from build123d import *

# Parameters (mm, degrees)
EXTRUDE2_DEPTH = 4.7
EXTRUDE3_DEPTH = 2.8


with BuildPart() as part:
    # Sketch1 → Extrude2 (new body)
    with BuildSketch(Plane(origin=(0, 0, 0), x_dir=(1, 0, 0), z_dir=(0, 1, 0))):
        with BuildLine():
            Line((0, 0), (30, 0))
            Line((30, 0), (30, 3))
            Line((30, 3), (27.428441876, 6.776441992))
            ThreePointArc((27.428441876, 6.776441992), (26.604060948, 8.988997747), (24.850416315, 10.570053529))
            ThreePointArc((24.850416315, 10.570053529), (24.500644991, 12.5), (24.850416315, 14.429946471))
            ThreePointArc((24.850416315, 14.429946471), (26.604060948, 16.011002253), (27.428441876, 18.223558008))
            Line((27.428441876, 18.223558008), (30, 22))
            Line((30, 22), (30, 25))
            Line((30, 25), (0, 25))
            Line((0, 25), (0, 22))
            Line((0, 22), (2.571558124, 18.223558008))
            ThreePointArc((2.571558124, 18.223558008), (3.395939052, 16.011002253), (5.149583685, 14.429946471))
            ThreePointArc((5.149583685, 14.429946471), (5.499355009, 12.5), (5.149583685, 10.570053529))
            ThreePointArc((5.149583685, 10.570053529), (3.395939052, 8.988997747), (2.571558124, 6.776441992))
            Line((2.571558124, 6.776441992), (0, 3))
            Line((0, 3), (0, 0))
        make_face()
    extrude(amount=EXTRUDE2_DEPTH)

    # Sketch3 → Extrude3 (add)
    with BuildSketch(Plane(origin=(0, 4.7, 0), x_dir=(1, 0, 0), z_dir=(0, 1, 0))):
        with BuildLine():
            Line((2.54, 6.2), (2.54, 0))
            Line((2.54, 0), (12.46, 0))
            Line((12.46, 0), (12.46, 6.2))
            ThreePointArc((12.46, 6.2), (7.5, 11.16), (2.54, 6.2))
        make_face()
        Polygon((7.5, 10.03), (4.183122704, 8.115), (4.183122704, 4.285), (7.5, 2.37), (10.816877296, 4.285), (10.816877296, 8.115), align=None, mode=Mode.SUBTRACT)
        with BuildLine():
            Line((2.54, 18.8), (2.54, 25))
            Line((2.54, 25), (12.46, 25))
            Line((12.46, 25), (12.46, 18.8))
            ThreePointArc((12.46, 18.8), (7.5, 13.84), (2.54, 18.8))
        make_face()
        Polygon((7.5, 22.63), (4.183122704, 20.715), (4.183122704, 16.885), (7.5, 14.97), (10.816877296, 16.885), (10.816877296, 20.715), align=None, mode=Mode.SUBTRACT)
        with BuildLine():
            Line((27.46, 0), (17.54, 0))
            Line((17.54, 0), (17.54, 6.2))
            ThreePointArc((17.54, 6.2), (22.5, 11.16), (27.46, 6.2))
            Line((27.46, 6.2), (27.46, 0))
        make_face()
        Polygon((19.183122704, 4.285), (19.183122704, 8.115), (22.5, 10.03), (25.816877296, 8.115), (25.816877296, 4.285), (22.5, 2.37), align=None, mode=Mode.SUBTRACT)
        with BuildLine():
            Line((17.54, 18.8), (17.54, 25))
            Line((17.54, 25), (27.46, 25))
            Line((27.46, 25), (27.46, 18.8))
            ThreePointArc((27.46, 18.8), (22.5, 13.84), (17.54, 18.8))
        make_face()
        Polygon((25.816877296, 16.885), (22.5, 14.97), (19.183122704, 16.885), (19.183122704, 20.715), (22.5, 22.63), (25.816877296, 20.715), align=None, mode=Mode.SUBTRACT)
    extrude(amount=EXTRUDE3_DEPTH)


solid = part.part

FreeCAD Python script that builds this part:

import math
import FreeCAD as App
import Part
import Sketcher

V = App.Vector
Q = App.Units.Quantity

doc = App.newDocument("Part")
body = doc.addObject("PartDesign::Body", "Body")

sketch1 = body.newObject("Sketcher::SketchObject", "Sketch")
sketch1.AttachmentSupport = (doc.getObject("XZ_Plane"), [""])
sketch1.MapMode = "FlatFace"
sketch1.addGeometry(Part.LineSegment(V(0, 0, 0), V(30, 0, 0)), False)
sketch1.addGeometry(Part.LineSegment(V(30, 0, 0), V(30, -3, 0)), False)
sketch1.addGeometry(Part.LineSegment(V(30, -3, 0), V(27.428442, -6.776442, 0)), False)
sketch1.addGeometry(Part.ArcOfCircle(Part.Circle(V(22.5, -6.2, 0), V(0, 0, 1), 4.962038), math.radians(-61.726587), math.radians(-6.671137)), False)
sketch1.addGeometry(Part.ArcOfCircle(Part.Circle(V(30, -12.5, 0), V(0, 0, 1), 5.499355), math.radians(159.455148), math.radians(200.544852)), False)
sketch1.addGeometry(Part.ArcOfCircle(Part.Circle(V(22.5, -18.8, 0), V(0, 0, 1), 4.962038), math.radians(6.671137), math.radians(61.726587)), False)
sketch1.addGeometry(Part.LineSegment(V(27.428442, -18.223558, 0), V(30, -22, 0)), False)
sketch1.addGeometry(Part.LineSegment(V(30, -22, 0), V(30, -25, 0)), False)
sketch1.addGeometry(Part.LineSegment(V(30, -25, 0), V(0, -25, 0)), False)
sketch1.addGeometry(Part.LineSegment(V(0, -25, 0), V(0, -22, 0)), False)
sketch1.addGeometry(Part.LineSegment(V(0, -22, 0), V(2.571558, -18.223558, 0)), False)
sketch1.addGeometry(Part.ArcOfCircle(Part.Circle(V(7.5, -18.8, 0), V(0, 0, 1), 4.962038), math.radians(118.273413), math.radians(173.328863)), False)
sketch1.addGeometry(Part.ArcOfCircle(Part.Circle(V(0, -12.5, 0), V(0, 0, 1), 5.499355), math.radians(-20.544852), math.radians(20.544852)), False)
sketch1.addGeometry(Part.ArcOfCircle(Part.Circle(V(7.5, -6.2, 0), V(0, 0, 1), 4.962038), math.radians(-173.328863), math.radians(-118.273413)), False)
sketch1.addGeometry(Part.LineSegment(V(2.571558, -6.776442, 0), V(0, -3, 0)), False)
sketch1.addGeometry(Part.LineSegment(V(0, -3, 0), V(0, 0, 0)), False)
sketch1.addConstraint(Sketcher.Constraint("Coincident", 0, 2, 1, 1))
sketch1.addConstraint(Sketcher.Constraint("Coincident", 1, 2, 2, 1))
sketch1.addConstraint(Sketcher.Constraint("Coincident", 2, 2, 3, 2))
sketch1.addConstraint(Sketcher.Constraint("Coincident", 3, 1, 4, 1))
sketch1.addConstraint(Sketcher.Constraint("Coincident", 4, 2, 5, 2))
sketch1.addConstraint(Sketcher.Constraint("Coincident", 5, 1, 6, 1))
sketch1.addConstraint(Sketcher.Constraint("Coincident", 6, 2, 7, 1))
sketch1.addConstraint(Sketcher.Constraint("Coincident", 7, 2, 8, 1))
sketch1.addConstraint(Sketcher.Constraint("Coincident", 8, 2, 9, 1))
sketch1.addConstraint(Sketcher.Constraint("Coincident", 9, 2, 10, 1))
sketch1.addConstraint(Sketcher.Constraint("Coincident", 10, 2, 11, 2))
sketch1.addConstraint(Sketcher.Constraint("Coincident", 11, 1, 12, 1))
sketch1.addConstraint(Sketcher.Constraint("Coincident", 12, 2, 13, 2))
sketch1.addConstraint(Sketcher.Constraint("Coincident", 13, 1, 14, 1))
sketch1.addConstraint(Sketcher.Constraint("Coincident", 14, 2, 15, 1))
sketch1.addConstraint(Sketcher.Constraint("Coincident", 15, 2, 0, 1))
sketch1.addConstraint(Sketcher.Constraint("Horizontal", 0))
sketch1.addConstraint(Sketcher.Constraint("Vertical", 1))
sketch1.addConstraint(Sketcher.Constraint("Vertical", 7))
sketch1.addConstraint(Sketcher.Constraint("Horizontal", 8))
sketch1.addConstraint(Sketcher.Constraint("Vertical", 9))
sketch1.addConstraint(Sketcher.Constraint("Vertical", 15))
sketch1.addConstraint(Sketcher.Constraint("Coincident", 15, 2, -1, 1))
sketch1.addConstraint(Sketcher.Constraint("Equal", 3, 5))
sketch1.addConstraint(Sketcher.Constraint("Equal", 5, 11))
sketch1.addConstraint(Sketcher.Constraint("Equal", 4, 12))
sketch1.addConstraint(Sketcher.Constraint("Equal", 11, 13))
sketch1.addConstraint(Sketcher.Constraint("PointOnObject", 12, 3, -2))
sketch1.addConstraint(Sketcher.Constraint("PointOnObject", 8, 2, -2))
sketch1.addConstraint(Sketcher.Constraint("Parallel", 2, 10))
sketch1.addConstraint(Sketcher.Constraint("Parallel", 6, 14))
sketch1.addConstraint(Sketcher.Constraint("Horizontal", 5, 3, 11, 3))
sketch1.addConstraint(Sketcher.Constraint("Horizontal", 4, 3, 12, 3))
sketch1.addConstraint(Sketcher.Constraint("Horizontal", 3, 3, 13, 3))
sketch1.addConstraint(Sketcher.Constraint("Horizontal", 6, 2, 9, 2))
sketch1.addConstraint(Sketcher.Constraint("Horizontal", 5, 1, 10, 2))
sketch1.addConstraint(Sketcher.Constraint("Horizontal", 4, 2, 11, 1))
sketch1.addConstraint(Sketcher.Constraint("Horizontal", 3, 1, 12, 2))
sketch1.addConstraint(Sketcher.Constraint("Horizontal", 2, 2, 13, 1))
sketch1.addConstraint(Sketcher.Constraint("Horizontal", 1, 2, 14, 2))
sketch1.addConstraint(Sketcher.Constraint("Vertical", 3, 3, 5, 3))
sketch1.addConstraint(Sketcher.Constraint("Vertical", 4, 3, 0, 2))
sketch1.addConstraint(Sketcher.Constraint("Vertical", 3, 1, 4, 2))
sketch1.addConstraint(Sketcher.Constraint("Vertical", 2, 2, 5, 1))
sketch1.addConstraint(Sketcher.Constraint("Equal", 1, 7))
sketch1.addConstraint(Sketcher.Constraint("DistanceX", 0, 1, 0, 2, Q("30 mm")))
sketch1.addConstraint(Sketcher.Constraint("DistanceY", 1, 2, 1, 1, Q("3 mm")))
sketch1.addConstraint(Sketcher.Constraint("DistanceY", 6, 2, -1, 1, Q("22 mm")))
sketch1.addConstraint(Sketcher.Constraint("DistanceX", 11, 3, 5, 3, Q("15 mm")))
sketch1.addConstraint(Sketcher.Constraint("DistanceY", 3, 3, -1, 1, Q("6.2 mm")))
sketch1.addConstraint(Sketcher.Constraint("Radius", 3, Q("4.962038 mm")))
sketch1.addConstraint(Sketcher.Constraint("Radius", 4, Q("5.499355 mm")))
sketch1.addConstraint(Sketcher.Constraint("DistanceX", -1, 1, 2, 2, Q("27.428442 mm")))
pad1 = body.newObject("PartDesign::Pad", "Pad")
pad1.Profile = sketch1
pad1.Length = 4.7
pad1.Reversed = True

sketch2 = body.newObject("Sketcher::SketchObject", "Sketch001")
sketch2.AttachmentSupport = (doc.getObject("XZ_Plane"), [""])
sketch2.MapMode = "FlatFace"
sketch2.AttachmentOffset = App.Placement(V(0, 0, -4.7), App.Rotation())
sketch2.addGeometry(Part.LineSegment(V(2.54, -6.2, 0), V(2.54, 0, 0)), False)
sketch2.addGeometry(Part.LineSegment(V(2.54, 0, 0), V(12.46, 0, 0)), False)
sketch2.addGeometry(Part.LineSegment(V(12.46, 0, 0), V(12.46, -6.2, 0)), False)
sketch2.addGeometry(Part.ArcOfCircle(Part.Circle(V(7.5, -6.2, 0), V(0, 0, 1), 4.96), math.radians(180), math.radians(360)), False)
sketch2.addGeometry(Part.LineSegment(V(4.183123, -8.115, 0), V(7.5, -10.03, 0)), False)
sketch2.addGeometry(Part.LineSegment(V(7.5, -10.03, 0), V(10.816877, -8.115, 0)), False)
sketch2.addGeometry(Part.LineSegment(V(10.816877, -8.115, 0), V(10.816877, -4.285, 0)), False)
sketch2.addGeometry(Part.LineSegment(V(10.816877, -4.285, 0), V(7.5, -2.37, 0)), False)
sketch2.addGeometry(Part.LineSegment(V(7.5, -2.37, 0), V(4.183123, -4.285, 0)), False)
sketch2.addGeometry(Part.LineSegment(V(4.183123, -4.285, 0), V(4.183123, -8.115, 0)), False)
sketch2.addGeometry(Part.LineSegment(V(2.54, -25, 0), V(2.54, -18.8, 0)), False)
sketch2.addGeometry(Part.ArcOfCircle(Part.Circle(V(7.5, -18.8, 0), V(0, 0, 1), 4.96), math.radians(0), math.radians(180)), False)
sketch2.addGeometry(Part.LineSegment(V(12.46, -18.8, 0), V(12.46, -25, 0)), False)
sketch2.addGeometry(Part.LineSegment(V(12.46, -25, 0), V(2.54, -25, 0)), False)
sketch2.addGeometry(Part.LineSegment(V(7.5, -22.63, 0), V(10.816877, -20.715, 0)), False)
sketch2.addGeometry(Part.LineSegment(V(10.816877, -20.715, 0), V(10.816877, -16.885, 0)), False)
sketch2.addGeometry(Part.LineSegment(V(10.816877, -16.885, 0), V(7.5, -14.97, 0)), False)
sketch2.addGeometry(Part.LineSegment(V(7.5, -14.97, 0), V(4.183123, -16.885, 0)), False)
sketch2.addGeometry(Part.LineSegment(V(4.183123, -16.885, 0), V(4.183123, -20.715, 0)), False)
sketch2.addGeometry(Part.LineSegment(V(4.183123, -20.715, 0), V(7.5, -22.63, 0)), False)
sketch2.addGeometry(Part.LineSegment(V(17.54, 0, 0), V(27.46, 0, 0)), False)
sketch2.addGeometry(Part.LineSegment(V(27.46, 0, 0), V(27.46, -6.2, 0)), False)
sketch2.addGeometry(Part.ArcOfCircle(Part.Circle(V(22.5, -6.2, 0), V(0, 0, 1), 4.96), math.radians(180), math.radians(360)), False)
sketch2.addGeometry(Part.LineSegment(V(17.54, -6.2, 0), V(17.54, 0, 0)), False)
sketch2.addGeometry(Part.LineSegment(V(19.183123, -4.285, 0), V(19.183123, -8.115, 0)), False)
sketch2.addGeometry(Part.LineSegment(V(19.183123, -8.115, 0), V(22.5, -10.03, 0)), False)
sketch2.addGeometry(Part.LineSegment(V(22.5, -10.03, 0), V(25.816877, -8.115, 0)), False)
sketch2.addGeometry(Part.LineSegment(V(25.816877, -8.115, 0), V(25.816877, -4.285, 0)), False)
sketch2.addGeometry(Part.LineSegment(V(25.816877, -4.285, 0), V(22.5, -2.37, 0)), False)
sketch2.addGeometry(Part.LineSegment(V(22.5, -2.37, 0), V(19.183123, -4.285, 0)), False)
sketch2.addGeometry(Part.LineSegment(V(17.54, -25, 0), V(17.54, -18.8, 0)), False)
sketch2.addGeometry(Part.ArcOfCircle(Part.Circle(V(22.5, -18.8, 0), V(0, 0, 1), 4.96), math.radians(0), math.radians(180)), False)
sketch2.addGeometry(Part.LineSegment(V(27.46, -18.8, 0), V(27.46, -25, 0)), False)
sketch2.addGeometry(Part.LineSegment(V(27.46, -25, 0), V(17.54, -25, 0)), False)
sketch2.addGeometry(Part.LineSegment(V(25.816877, -16.885, 0), V(22.5, -14.97, 0)), False)
sketch2.addGeometry(Part.LineSegment(V(22.5, -14.97, 0), V(19.183123, -16.885, 0)), False)
sketch2.addGeometry(Part.LineSegment(V(19.183123, -16.885, 0), V(19.183123, -20.715, 0)), False)
sketch2.addGeometry(Part.LineSegment(V(19.183123, -20.715, 0), V(22.5, -22.63, 0)), False)
sketch2.addGeometry(Part.LineSegment(V(22.5, -22.63, 0), V(25.816877, -20.715, 0)), False)
sketch2.addGeometry(Part.LineSegment(V(25.816877, -20.715, 0), V(25.816877, -16.885, 0)), False)
sketch2.addConstraint(Sketcher.Constraint("Coincident", 0, 2, 1, 1))
sketch2.addConstraint(Sketcher.Constraint("Coincident", 1, 2, 2, 1))
sketch2.addConstraint(Sketcher.Constraint("Tangent", 2, 2, 3, 2))
sketch2.addConstraint(Sketcher.Constraint("Tangent", 3, 1, 0, 1))
sketch2.addConstraint(Sketcher.Constraint("Coincident", 4, 2, 5, 1))
sketch2.addConstraint(Sketcher.Constraint("Coincident", 5, 2, 6, 1))
sketch2.addConstraint(Sketcher.Constraint("Coincident", 6, 2, 7, 1))
sketch2.addConstraint(Sketcher.Constraint("Coincident", 7, 2, 8, 1))
sketch2.addConstraint(Sketcher.Constraint("Coincident", 8, 2, 9, 1))
sketch2.addConstraint(Sketcher.Constraint("Coincident", 9, 2, 4, 1))
sketch2.addConstraint(Sketcher.Constraint("Tangent", 10, 2, 11, 2))
sketch2.addConstraint(Sketcher.Constraint("Tangent", 11, 1, 12, 1))
sketch2.addConstraint(Sketcher.Constraint("Coincident", 12, 2, 13, 1))
sketch2.addConstraint(Sketcher.Constraint("Coincident", 13, 2, 10, 1))
sketch2.addConstraint(Sketcher.Constraint("Coincident", 14, 2, 15, 1))
sketch2.addConstraint(Sketcher.Constraint("Coincident", 15, 2, 16, 1))
sketch2.addConstraint(Sketcher.Constraint("Coincident", 16, 2, 17, 1))
sketch2.addConstraint(Sketcher.Constraint("Coincident", 17, 2, 18, 1))
sketch2.addConstraint(Sketcher.Constraint("Coincident", 18, 2, 19, 1))
sketch2.addConstraint(Sketcher.Constraint("Coincident", 19, 2, 14, 1))
sketch2.addConstraint(Sketcher.Constraint("Coincident", 20, 2, 21, 1))
sketch2.addConstraint(Sketcher.Constraint("Tangent", 21, 2, 22, 2))
sketch2.addConstraint(Sketcher.Constraint("Tangent", 22, 1, 23, 1))
sketch2.addConstraint(Sketcher.Constraint("Coincident", 23, 2, 20, 1))
sketch2.addConstraint(Sketcher.Constraint("Coincident", 24, 2, 25, 1))
sketch2.addConstraint(Sketcher.Constraint("Coincident", 25, 2, 26, 1))
sketch2.addConstraint(Sketcher.Constraint("Coincident", 26, 2, 27, 1))
sketch2.addConstraint(Sketcher.Constraint("Coincident", 27, 2, 28, 1))
sketch2.addConstraint(Sketcher.Constraint("Coincident", 28, 2, 29, 1))
sketch2.addConstraint(Sketcher.Constraint("Coincident", 29, 2, 24, 1))
sketch2.addConstraint(Sketcher.Constraint("Tangent", 30, 2, 31, 2))
sketch2.addConstraint(Sketcher.Constraint("Tangent", 31, 1, 32, 1))
sketch2.addConstraint(Sketcher.Constraint("Coincident", 32, 2, 33, 1))
sketch2.addConstraint(Sketcher.Constraint("Coincident", 33, 2, 30, 1))
sketch2.addConstraint(Sketcher.Constraint("Coincident", 34, 2, 35, 1))
sketch2.addConstraint(Sketcher.Constraint("Coincident", 35, 2, 36, 1))
sketch2.addConstraint(Sketcher.Constraint("Coincident", 36, 2, 37, 1))
sketch2.addConstraint(Sketcher.Constraint("Coincident", 37, 2, 38, 1))
sketch2.addConstraint(Sketcher.Constraint("Coincident", 38, 2, 39, 1))
sketch2.addConstraint(Sketcher.Constraint("Coincident", 39, 2, 34, 1))
sketch2.addConstraint(Sketcher.Constraint("Vertical", 0))
sketch2.addConstraint(Sketcher.Constraint("Horizontal", 1))
sketch2.addConstraint(Sketcher.Constraint("Vertical", 2))
sketch2.addConstraint(Sketcher.Constraint("Vertical", 6))
sketch2.addConstraint(Sketcher.Constraint("Vertical", 9))
sketch2.addConstraint(Sketcher.Constraint("Vertical", 10))
sketch2.addConstraint(Sketcher.Constraint("Vertical", 12))
sketch2.addConstraint(Sketcher.Constraint("Horizontal", 13))
sketch2.addConstraint(Sketcher.Constraint("Vertical", 15))
sketch2.addConstraint(Sketcher.Constraint("Vertical", 18))
sketch2.addConstraint(Sketcher.Constraint("Horizontal", 20))
sketch2.addConstraint(Sketcher.Constraint("Vertical", 21))
sketch2.addConstraint(Sketcher.Constraint("Vertical", 23))
sketch2.addConstraint(Sketcher.Constraint("Vertical", 24))
sketch2.addConstraint(Sketcher.Constraint("Vertical", 27))
sketch2.addConstraint(Sketcher.Constraint("Vertical", 30))
sketch2.addConstraint(Sketcher.Constraint("Vertical", 32))
sketch2.addConstraint(Sketcher.Constraint("Horizontal", 33))
sketch2.addConstraint(Sketcher.Constraint("Vertical", 36))
sketch2.addConstraint(Sketcher.Constraint("Vertical", 39))
sketch2.addConstraint(Sketcher.Constraint("Equal", 3, 11))
sketch2.addConstraint(Sketcher.Constraint("Equal", 11, 22))
sketch2.addConstraint(Sketcher.Constraint("Equal", 22, 31))
sketch2.addConstraint(Sketcher.Constraint("PointOnObject", 0, 2, -1))
sketch2.addConstraint(Sketcher.Constraint("PointOnObject", 20, 2, -1))
sketch2.addConstraint(Sketcher.Constraint("Parallel", 4, 7))
sketch2.addConstraint(Sketcher.Constraint("Parallel", 5, 8))
sketch2.addConstraint(Sketcher.Constraint("Parallel", 8, 14))
sketch2.addConstraint(Sketcher.Constraint("Parallel", 7, 16))
sketch2.addConstraint(Sketcher.Constraint("Parallel", 14, 17))
sketch2.addConstraint(Sketcher.Constraint("Parallel", 16, 19))
sketch2.addConstraint(Sketcher.Constraint("Parallel", 19, 25))
sketch2.addConstraint(Sketcher.Constraint("Parallel", 17, 26))
sketch2.addConstraint(Sketcher.Constraint("Parallel", 25, 28))
sketch2.addConstraint(Sketcher.Constraint("Parallel", 26, 29))
sketch2.addConstraint(Sketcher.Constraint("Parallel", 28, 34))
sketch2.addConstraint(Sketcher.Constraint("Parallel", 29, 35))
sketch2.addConstraint(Sketcher.Constraint("Parallel", 34, 37))
sketch2.addConstraint(Sketcher.Constraint("Parallel", 35, 38))
sketch2.addConstraint(Sketcher.Constraint("Horizontal", 3, 3, 22, 3))
sketch2.addConstraint(Sketcher.Constraint("Horizontal", 11, 3, 31, 3))
sketch2.addConstraint(Sketcher.Constraint("Horizontal", 6, 2, 8, 2))
sketch2.addConstraint(Sketcher.Constraint("Horizontal", 5, 2, 9, 2))
sketch2.addConstraint(Sketcher.Constraint("Horizontal", 15, 2, 17, 2))
sketch2.addConstraint(Sketcher.Constraint("Horizontal", 14, 2, 18, 2))
sketch2.addConstraint(Sketcher.Constraint("Horizontal", 9, 2, 24, 2))
sketch2.addConstraint(Sketcher.Constraint("Horizontal", 4, 2, 25, 2))
sketch2.addConstraint(Sketcher.Constraint("Horizontal", 24, 2, 26, 2))
sketch2.addConstraint(Sketcher.Constraint("Horizontal", 8, 2, 27, 2))
sketch2.addConstraint(Sketcher.Constraint("Horizontal", 7, 2, 28, 2))
sketch2.addConstraint(Sketcher.Constraint("Horizontal", 13, 2, 32, 2))
sketch2.addConstraint(Sketcher.Constraint("Horizontal", 16, 2, 34, 2))
sketch2.addConstraint(Sketcher.Constraint("Horizontal", 17, 2, 35, 2))
sketch2.addConstraint(Sketcher.Constraint("Horizontal", 18, 2, 36, 2))
sketch2.addConstraint(Sketcher.Constraint("Horizontal", 19, 2, 37, 2))
sketch2.addConstraint(Sketcher.Constraint("Horizontal", 36, 2, 38, 2))
sketch2.addConstraint(Sketcher.Constraint("Vertical", 3, 3, 11, 3))
sketch2.addConstraint(Sketcher.Constraint("Vertical", 22, 3, 31, 3))
sketch2.addConstraint(Sketcher.Constraint("Vertical", 11, 3, 4, 2))
sketch2.addConstraint(Sketcher.Constraint("Vertical", 4, 2, 7, 2))
sketch2.addConstraint(Sketcher.Constraint("Vertical", 6, 2, 14, 2))
sketch2.addConstraint(Sketcher.Constraint("Vertical", 7, 2, 16, 2))
sketch2.addConstraint(Sketcher.Constraint("Vertical", 31, 3, 25, 2))
sketch2.addConstraint(Sketcher.Constraint("Vertical", 28, 2, 34, 2))
sketch2.addConstraint(Sketcher.Constraint("Equal", 2, 10))
sketch2.addConstraint(Sketcher.Constraint("Equal", 9, 15))
sketch2.addConstraint(Sketcher.Constraint("Angle", 4, Q("-30 deg")))
sketch2.addConstraint(Sketcher.Constraint("Radius", 3, Q("4.96 mm")))
sketch2.addConstraint(Sketcher.Constraint("DistanceY", 0, 1, 0, 2, Q("6.2 mm")))
sketch2.addConstraint(Sketcher.Constraint("DistanceY", 12, 2, -1, 1, Q("25 mm")))
sketch2.addConstraint(Sketcher.Constraint("DistanceX", 3, 3, 22, 3, Q("15 mm")))
sketch2.addConstraint(Sketcher.Constraint("DistanceY", 6, 1, 6, 2, Q("3.83 mm")))
sketch2.addConstraint(Sketcher.Constraint("DistanceX", -1, 1, 3, 3, Q("7.5 mm")))
sketch2.addConstraint(Sketcher.Constraint("Distance", 4, Q("3.83 mm")))
sketch2.addConstraint(Sketcher.Constraint("DistanceY", 4, 2, -1, 1, Q("10.03 mm")))
sketch2.addConstraint(Sketcher.Constraint("DistanceY", 16, 2, -1, 1, Q("14.97 mm")))
pad2 = body.newObject("PartDesign::Pad", "Pad001")
pad2.Profile = sketch2
pad2.Length = 2.8
pad2.Reversed = True

doc.recompute()
